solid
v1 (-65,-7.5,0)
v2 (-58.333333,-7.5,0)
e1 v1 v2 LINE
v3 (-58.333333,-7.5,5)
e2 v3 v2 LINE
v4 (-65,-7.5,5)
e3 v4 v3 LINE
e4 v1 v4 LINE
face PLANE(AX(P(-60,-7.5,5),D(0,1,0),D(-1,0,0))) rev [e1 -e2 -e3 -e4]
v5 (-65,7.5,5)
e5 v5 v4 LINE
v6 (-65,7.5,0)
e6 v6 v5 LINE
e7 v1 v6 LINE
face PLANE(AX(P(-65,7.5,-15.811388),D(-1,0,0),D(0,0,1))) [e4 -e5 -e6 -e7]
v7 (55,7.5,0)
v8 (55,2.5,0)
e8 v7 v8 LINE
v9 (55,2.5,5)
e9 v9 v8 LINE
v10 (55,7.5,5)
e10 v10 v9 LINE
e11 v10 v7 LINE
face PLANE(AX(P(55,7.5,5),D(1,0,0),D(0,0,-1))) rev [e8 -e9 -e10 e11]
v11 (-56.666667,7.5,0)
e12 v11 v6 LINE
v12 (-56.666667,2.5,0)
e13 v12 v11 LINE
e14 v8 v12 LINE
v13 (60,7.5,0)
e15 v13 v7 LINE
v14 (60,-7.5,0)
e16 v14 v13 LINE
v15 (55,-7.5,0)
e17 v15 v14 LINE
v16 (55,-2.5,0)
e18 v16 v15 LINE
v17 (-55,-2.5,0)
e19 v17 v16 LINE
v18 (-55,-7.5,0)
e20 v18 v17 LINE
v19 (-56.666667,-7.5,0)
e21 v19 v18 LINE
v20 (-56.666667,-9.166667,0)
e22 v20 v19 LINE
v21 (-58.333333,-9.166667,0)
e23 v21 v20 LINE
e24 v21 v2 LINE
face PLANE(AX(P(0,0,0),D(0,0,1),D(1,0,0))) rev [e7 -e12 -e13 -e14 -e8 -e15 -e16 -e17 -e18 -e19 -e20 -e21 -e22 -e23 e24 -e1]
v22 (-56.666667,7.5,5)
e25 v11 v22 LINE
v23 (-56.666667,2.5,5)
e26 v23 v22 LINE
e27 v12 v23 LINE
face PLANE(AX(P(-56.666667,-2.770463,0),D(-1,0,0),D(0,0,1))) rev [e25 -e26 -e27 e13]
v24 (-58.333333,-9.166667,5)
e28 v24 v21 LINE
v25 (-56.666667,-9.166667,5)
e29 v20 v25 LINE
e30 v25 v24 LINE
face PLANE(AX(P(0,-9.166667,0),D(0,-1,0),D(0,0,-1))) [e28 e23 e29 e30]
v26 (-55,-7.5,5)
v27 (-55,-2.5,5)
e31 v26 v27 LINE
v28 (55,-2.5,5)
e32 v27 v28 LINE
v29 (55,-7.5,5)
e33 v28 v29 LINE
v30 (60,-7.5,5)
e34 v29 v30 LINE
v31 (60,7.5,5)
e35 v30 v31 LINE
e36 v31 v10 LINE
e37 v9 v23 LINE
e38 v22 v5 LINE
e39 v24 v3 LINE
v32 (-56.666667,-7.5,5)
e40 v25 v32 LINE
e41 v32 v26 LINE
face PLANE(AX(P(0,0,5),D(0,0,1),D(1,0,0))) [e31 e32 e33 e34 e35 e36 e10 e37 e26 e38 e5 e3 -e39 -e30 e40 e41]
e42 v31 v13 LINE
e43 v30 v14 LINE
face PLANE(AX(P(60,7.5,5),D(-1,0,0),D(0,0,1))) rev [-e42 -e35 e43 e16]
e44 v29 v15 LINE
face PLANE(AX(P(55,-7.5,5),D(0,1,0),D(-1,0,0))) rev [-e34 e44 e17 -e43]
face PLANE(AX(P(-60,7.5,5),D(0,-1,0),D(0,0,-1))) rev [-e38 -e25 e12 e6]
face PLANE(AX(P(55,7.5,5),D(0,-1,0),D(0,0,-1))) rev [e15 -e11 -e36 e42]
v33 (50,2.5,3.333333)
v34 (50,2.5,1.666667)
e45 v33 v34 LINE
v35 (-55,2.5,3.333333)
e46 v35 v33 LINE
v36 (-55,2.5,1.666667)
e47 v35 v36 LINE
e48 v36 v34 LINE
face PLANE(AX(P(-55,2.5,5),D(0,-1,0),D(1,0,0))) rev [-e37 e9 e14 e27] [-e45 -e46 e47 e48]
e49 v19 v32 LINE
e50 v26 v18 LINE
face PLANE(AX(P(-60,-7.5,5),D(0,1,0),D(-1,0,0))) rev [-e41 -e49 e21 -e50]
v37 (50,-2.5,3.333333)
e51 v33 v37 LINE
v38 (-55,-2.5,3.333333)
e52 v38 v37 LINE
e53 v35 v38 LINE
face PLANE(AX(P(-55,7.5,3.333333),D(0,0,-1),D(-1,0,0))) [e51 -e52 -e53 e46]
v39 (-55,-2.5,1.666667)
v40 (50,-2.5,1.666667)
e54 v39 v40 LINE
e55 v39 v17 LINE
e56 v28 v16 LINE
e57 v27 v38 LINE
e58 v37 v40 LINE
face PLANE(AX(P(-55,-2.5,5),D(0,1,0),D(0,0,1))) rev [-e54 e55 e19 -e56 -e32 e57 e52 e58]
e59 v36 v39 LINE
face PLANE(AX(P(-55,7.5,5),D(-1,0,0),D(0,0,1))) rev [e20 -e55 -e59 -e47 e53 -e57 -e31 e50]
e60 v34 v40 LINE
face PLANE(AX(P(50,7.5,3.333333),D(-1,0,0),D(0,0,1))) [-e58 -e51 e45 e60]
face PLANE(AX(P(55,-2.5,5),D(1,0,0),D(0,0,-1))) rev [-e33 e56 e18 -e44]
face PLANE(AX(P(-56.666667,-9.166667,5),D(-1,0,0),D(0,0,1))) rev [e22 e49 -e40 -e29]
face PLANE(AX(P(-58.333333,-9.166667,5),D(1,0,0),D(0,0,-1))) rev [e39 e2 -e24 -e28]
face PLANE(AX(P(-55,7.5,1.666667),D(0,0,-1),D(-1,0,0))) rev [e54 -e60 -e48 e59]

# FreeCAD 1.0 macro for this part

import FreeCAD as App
import Part
import Sketcher

V = App.Vector
Q = App.Units.Quantity


def add_polygon(sketch, points):
    """Adds a closed chain of lines whose ends are joined by coincident constraints."""
    first, n = sketch.GeometryCount, len(points)
    for a, b in zip(points, points[1:] + points[:1]):
        sketch.addGeometry(Part.LineSegment(App.Vector(*a, 0), App.Vector(*b, 0)), False)
    for i in range(n):
        sketch.addConstraint(Sketcher.Constraint("Coincident", first + i, 2, first + (i + 1) % n, 1))

doc = App.newDocument("Part")
body = doc.addObject("PartDesign::Body", "Body")

# Sketch on XY plane
sketch1 = body.newObject("Sketcher::SketchObject", "Sketch")
sketch1.AttachmentSupport = (doc.getObject("XY_Plane"), [""])
sketch1.MapMode = "FlatFace"
add_polygon(sketch1, [(-55, 2), (-55, 8), (-60, 8), (-60, -8), (-55, -8), (-55, -2), (55, -2), (55, -8), (60, -8), (60, 8), (55, 8), (55, 2)])  # lines 0-11
sketch1.addConstraint([
    Sketcher.Constraint("Vertical", 0),
    Sketcher.Constraint("Horizontal", 1),
    Sketcher.Constraint("Vertical", 2),
    Sketcher.Constraint("Horizontal", 3),
    Sketcher.Constraint("Vertical", 4),
    Sketcher.Constraint("Horizontal", 5),
    Sketcher.Constraint("Vertical", 6),
    Sketcher.Constraint("Horizontal", 7),
    Sketcher.Constraint("Vertical", 8),
    Sketcher.Constraint("Horizontal", 9),
    Sketcher.Constraint("Vertical", 10),
    Sketcher.Constraint("Horizontal", 11),
    Sketcher.Constraint("Symmetric", 0, 2, 6, 2, -1, 1),
    Sketcher.Constraint("Symmetric", 2, 2, 8, 2, -1, 1),
    Sketcher.Constraint("Symmetric", 4, 2, 10, 2, -1, 1),
    Sketcher.Constraint("Symmetric", 3, 2, 6, 2, -2),
    Sketcher.Constraint("Equal", 9, 0),
    Sketcher.Constraint("DistanceX", 1, 2, 1, 1, Q("5 mm")),
    Sketcher.Constraint("DistanceX", 5, 1, 5, 2, Q("110 mm")),
    Sketcher.Constraint("DistanceY", 2, 2, 2, 1, Q("15 mm")),
])
pad1 = body.newObject("PartDesign::Pad", "Pad")
pad1.Profile = sketch1
pad1.Length = 5

# Sketch on XZ plane
sketch2 = body.newObject("Sketcher::SketchObject", "Sketch001")
sketch2.AttachmentSupport = (doc.getObject("XZ_Plane"), [""])
sketch2.MapMode = "FlatFace"
sketch2.AttachmentOffset = App.Placement(V(0, 0, 7.5), App.Rotation())
add_polygon(sketch2, [(-58.3, 5), (-58.3, 0), (-56.7, 0), (-56.7, 5)])  # lines 0-3
sketch2.addConstraint([
    Sketcher.Constraint("Vertical", 0),
    Sketcher.Constraint("Horizontal", 1),
    Sketcher.Constraint("Vertical", 2),
    Sketcher.Constraint("Horizontal", 3),
    Sketcher.Constraint("PointOnObject", 0, 2, -1),
    Sketcher.Constraint("DistanceY", 0, 2, 0, 1, Q("5 mm")),
    Sketcher.Constraint("DistanceX", 1, 1, 1, 2, Q("1.666667 mm")),
    Sketcher.Constraint("DistanceX", 0, 2, -1, 1, Q("58.333333 mm")),
])
pad2 = body.newObject("PartDesign::Pad", "Pad001")
pad2.Profile = sketch2
pad2.Length = 1.666667

# Sketch on XY plane
sketch3 = body.newObject("Sketcher::SketchObject", "Sketch002")
sketch3.AttachmentSupport = (doc.getObject("XY_Plane"), [""])
sketch3.MapMode = "FlatFace"
sketch3.AttachmentOffset = App.Placement(V(0, 0, 5), App.Rotation())
add_polygon(sketch3, [(-65, 8), (-65, -8), (-60, -8), (-60, 8)])  # lines 0-3
sketch3.addConstraint([
    Sketcher.Constraint("Vertical", 0),
    Sketcher.Constraint("Horizontal", 1),
    Sketcher.Constraint("Vertical", 2),
    Sketcher.Constraint("Horizontal", 3),
    Sketcher.Constraint("DistanceX", 1, 1, 1, 2, Q("5 mm")),
    Sketcher.Constraint("DistanceY", 0, 2, 0, 1, Q("15 mm")),
    Sketcher.Constraint("DistanceX", 0, 2, -1, 1, Q("65 mm")),
    Sketcher.Constraint("DistanceY", 0, 2, -1, 1, Q("7.5 mm")),
])
pad3 = body.newObject("PartDesign::Pad", "Pad002")
pad3.Profile = sketch3
pad3.Length = 5
pad3.Reversed = True

# Sketch on XZ plane
sketch4 = body.newObject("Sketcher::SketchObject", "Sketch003")
sketch4.AttachmentSupport = (doc.getObject("XZ_Plane"), [""])
sketch4.MapMode = "FlatFace"
sketch4.AttachmentOffset = App.Placement(V(0, 0, 2.5), App.Rotation())
add_polygon(sketch4, [(-55, 3.3), (-55, 1.7), (50, 1.7), (50, 3.3)])  # lines 0-3
sketch4.addConstraint([
    Sketcher.Constraint("Vertical", 0),
    Sketcher.Constraint("Horizontal", 1),
    Sketcher.Constraint("Vertical", 2),
    Sketcher.Constraint("Horizontal", 3),
    Sketcher.Constraint("DistanceX", 1, 1, 1, 2, Q("105 mm")),
    Sketcher.Constraint("DistanceX", 0, 2, -1, 1, Q("55 mm")),
    Sketcher.Constraint("DistanceY", 0, 2, 0, 1, Q("1.666667 mm")),
    Sketcher.Constraint("DistanceY", -1, 1, 0, 2, Q("1.666667 mm")),
])
pocket1 = body.newObject("PartDesign::Pocket", "Pocket")
pocket1.Profile = sketch4
pocket1.Type = "ThroughAll"

# Sketch on XZ plane
sketch5 = body.newObject("Sketcher::SketchObject", "Sketch004")
sketch5.AttachmentSupport = (doc.getObject("XZ_Plane"), [""])
sketch5.MapMode = "FlatFace"
sketch5.AttachmentOffset = App.Placement(V(0, 0, -7.5), App.Rotation())
add_polygon(sketch5, [(-56.7, 0), (-56.7, 5), (-55, 5), (-55, 0)])  # lines 0-3
sketch5.addConstraint([
    Sketcher.Constraint("Vertical", 0),
    Sketcher.Constraint("Horizontal", 1),
    Sketcher.Constraint("Vertical", 2),
    Sketcher.Constraint("Horizontal", 3),
    Sketcher.Constraint("PointOnObject", 2, 2, -1),
    Sketcher.Constraint("DistanceY", 0, 1, 0, 2, Q("5 mm")),
    Sketcher.Constraint("DistanceX", 1, 2, -1, 1, Q("55 mm")),
    Sketcher.Constraint("DistanceX", 1, 1, 1, 2, Q("1.666667 mm")),
])
pocket2 = body.newObject("PartDesign::Pocket", "Pocket001")
pocket2.Profile = sketch5
pocket2.Length = 5
pocket2.Reversed = True

doc.recompute()
